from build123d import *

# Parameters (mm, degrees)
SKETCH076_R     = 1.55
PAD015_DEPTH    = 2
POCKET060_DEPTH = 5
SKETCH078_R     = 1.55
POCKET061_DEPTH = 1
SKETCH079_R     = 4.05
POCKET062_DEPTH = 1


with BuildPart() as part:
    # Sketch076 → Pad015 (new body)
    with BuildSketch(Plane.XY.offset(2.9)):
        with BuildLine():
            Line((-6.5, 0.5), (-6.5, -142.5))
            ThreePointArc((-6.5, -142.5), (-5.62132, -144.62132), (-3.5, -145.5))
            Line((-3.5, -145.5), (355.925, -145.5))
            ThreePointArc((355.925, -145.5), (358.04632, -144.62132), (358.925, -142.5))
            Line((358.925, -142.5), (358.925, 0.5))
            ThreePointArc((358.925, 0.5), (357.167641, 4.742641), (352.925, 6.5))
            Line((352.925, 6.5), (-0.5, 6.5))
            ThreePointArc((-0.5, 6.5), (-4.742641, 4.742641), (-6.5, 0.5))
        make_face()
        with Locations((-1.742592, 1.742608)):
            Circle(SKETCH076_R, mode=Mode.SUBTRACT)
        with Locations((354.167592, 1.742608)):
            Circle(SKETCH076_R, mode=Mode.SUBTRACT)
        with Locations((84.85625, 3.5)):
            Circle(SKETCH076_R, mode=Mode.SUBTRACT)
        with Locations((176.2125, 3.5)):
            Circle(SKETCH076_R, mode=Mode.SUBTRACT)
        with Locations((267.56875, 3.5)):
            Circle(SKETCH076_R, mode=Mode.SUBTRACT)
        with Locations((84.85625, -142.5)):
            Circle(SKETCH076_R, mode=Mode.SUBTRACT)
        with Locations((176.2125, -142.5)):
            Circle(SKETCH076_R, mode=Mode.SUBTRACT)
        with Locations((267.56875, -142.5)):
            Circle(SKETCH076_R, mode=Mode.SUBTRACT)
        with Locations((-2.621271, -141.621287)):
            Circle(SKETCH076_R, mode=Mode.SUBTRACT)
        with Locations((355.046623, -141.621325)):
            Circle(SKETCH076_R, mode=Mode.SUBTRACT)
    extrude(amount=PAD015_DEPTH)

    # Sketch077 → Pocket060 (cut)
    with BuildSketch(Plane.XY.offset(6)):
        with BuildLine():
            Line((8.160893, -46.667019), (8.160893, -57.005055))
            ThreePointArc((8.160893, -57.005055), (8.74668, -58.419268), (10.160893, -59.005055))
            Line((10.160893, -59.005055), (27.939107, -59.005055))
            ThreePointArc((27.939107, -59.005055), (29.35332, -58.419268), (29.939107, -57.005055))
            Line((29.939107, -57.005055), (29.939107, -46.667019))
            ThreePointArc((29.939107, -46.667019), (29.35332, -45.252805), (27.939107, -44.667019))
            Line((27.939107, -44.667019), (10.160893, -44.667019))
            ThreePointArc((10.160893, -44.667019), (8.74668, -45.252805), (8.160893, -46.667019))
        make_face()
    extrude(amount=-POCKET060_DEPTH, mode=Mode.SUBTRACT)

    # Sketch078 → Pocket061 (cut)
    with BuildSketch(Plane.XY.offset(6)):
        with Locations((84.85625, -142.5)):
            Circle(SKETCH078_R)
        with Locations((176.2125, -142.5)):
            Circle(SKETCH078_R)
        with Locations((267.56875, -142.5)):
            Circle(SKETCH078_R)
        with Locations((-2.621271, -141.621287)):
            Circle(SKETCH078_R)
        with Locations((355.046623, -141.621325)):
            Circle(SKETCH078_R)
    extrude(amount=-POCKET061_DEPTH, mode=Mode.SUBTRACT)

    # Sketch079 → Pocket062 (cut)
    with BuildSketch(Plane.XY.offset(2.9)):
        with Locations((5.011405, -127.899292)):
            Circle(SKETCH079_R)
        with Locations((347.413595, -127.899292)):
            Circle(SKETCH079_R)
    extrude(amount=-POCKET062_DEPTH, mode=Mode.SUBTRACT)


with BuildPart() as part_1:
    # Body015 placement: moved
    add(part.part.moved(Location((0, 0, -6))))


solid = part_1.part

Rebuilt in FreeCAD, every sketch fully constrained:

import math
import FreeCAD as App
import Part
import Sketcher
Q = App.Units.Quantity

doc = App.newDocument("Part")
params = doc.addObject("Spreadsheet::Sheet", "Params")
for row, (alias, value) in enumerate([
    ("sketch1_radius", "3.000001 mm"),
    ("sketch1_radius2", "5.999999 mm"),
    ("sketch1_diameter", "3.1 mm"),
    ("sketch1_height", "143 mm"),
    ("pad1_length", "2 mm"),
    ("sketch2_radius", "2.000002 mm"),
    ("pocket1_length", "5 mm"),
    ("sketch3_diameter", "3.1 mm"),
    ("pocket2_length", "1 mm"),
    ("sketch4_diameter", "8.1 mm"),
    ("pocket3_length", "1 mm"),
], start=1):
    params.set(f"A{row}", alias)
    params.set(f"B{row}", "=" + value)
    params.setAlias(f"B{row}", alias)

body = doc.addObject("PartDesign::Body", "Body")

sketch1 = doc.addObject("Sketcher::SketchObject", "Sketch")
body.addObject(sketch1)
sketch1.AttachmentSupport = (doc.XY_Plane, [""])
sketch1.MapMode = "FlatFace"
sketch1.AttachmentOffset = App.Placement(App.Vector(0, 0, 2.9), App.Rotation())
sketch1.addGeometry(Part.LineSegment(App.Vector(-6.5, 0.5, 0), App.Vector(-6.5, -142.5, 0)), False)
sketch1.addGeometry(Part.ArcOfCircle(Part.Circle(App.Vector(-3.5, -142.5, 0), App.Vector(0, 0, 1), 3), math.radians(-180), math.radians(-90)), False)
sketch1.addGeometry(Part.LineSegment(App.Vector(-3.5, -145.5, 0), App.Vector(355.9, -145.5, 0)), False)
sketch1.addGeometry(Part.ArcOfCircle(Part.Circle(App.Vector(355.9, -142.5, 0), App.Vector(0, 0, 1), 3), math.radians(-90), math.radians(0)), False)
sketch1.addGeometry(Part.LineSegment(App.Vector(358.9, -142.5, 0), App.Vector(358.9, 0.5, 0)), False)
sketch1.addGeometry(Part.ArcOfCircle(Part.Circle(App.Vector(352.9, 0.5, 0), App.Vector(0, 0, 1), 6), math.radians(0), math.radians(90)), False)
sketch1.addGeometry(Part.LineSegment(App.Vector(352.9, 6.5, 0), App.Vector(-0.5, 6.5, 0)), False)
sketch1.addGeometry(Part.ArcOfCircle(Part.Circle(App.Vector(-0.5, 0.5, 0), App.Vector(0, 0, 1), 6), math.radians(90), math.radians(180)), False)
sketch1.addGeometry(Part.Circle(App.Vector(-2.6, -141.6, 0), App.Vector(0, 0, 1), 1.6), False)
sketch1.addGeometry(Part.Circle(App.Vector(84.9, -142.5, 0), App.Vector(0, 0, 1), 1.6), False)
sketch1.addGeometry(Part.Circle(App.Vector(176.2, -142.5, 0), App.Vector(0, 0, 1), 1.6), False)
sketch1.addGeometry(Part.Circle(App.Vector(267.6, -142.5, 0), App.Vector(0, 0, 1), 1.6), False)
sketch1.addGeometry(Part.Circle(App.Vector(355, -141.6, 0), App.Vector(0, 0, 1), 1.6), False)
sketch1.addGeometry(Part.Circle(App.Vector(-1.7, 1.7, 0), App.Vector(0, 0, 1), 1.6), False)
sketch1.addGeometry(Part.Circle(App.Vector(84.9, 3.5, 0), App.Vector(0, 0, 1), 1.6), False)
sketch1.addGeometry(Part.Circle(App.Vector(176.2, 3.5, 0), App.Vector(0, 0, 1), 1.6), False)
sketch1.addGeometry(Part.Circle(App.Vector(267.6, 3.5, 0), App.Vector(0, 0, 1), 1.6), False)
sketch1.addGeometry(Part.Circle(App.Vector(354.2, 1.7, 0), App.Vector(0, 0, 1), 1.6), False)
sketch1.addConstraint(Sketcher.Constraint("Tangent", 0, 2, 1, 1))
sketch1.addConstraint(Sketcher.Constraint("Tangent", 1, 2, 2, 1))
sketch1.addConstraint(Sketcher.Constraint("Tangent", 2, 2, 3, 1))
sketch1.addConstraint(Sketcher.Constraint("Tangent", 3, 2, 4, 1))
sketch1.addConstraint(Sketcher.Constraint("Tangent", 4, 2, 5, 1))
sketch1.addConstraint(Sketcher.Constraint("Tangent", 5, 2, 6, 1))
sketch1.addConstraint(Sketcher.Constraint("Tangent", 6, 2, 7, 1))
sketch1.addConstraint(Sketcher.Constraint("Tangent", 7, 2, 0, 1))
sketch1.addConstraint(Sketcher.Constraint("Vertical", 0))
sketch1.addConstraint(Sketcher.Constraint("Horizontal", 2))
sketch1.addConstraint(Sketcher.Constraint("Vertical", 4))
sketch1.addConstraint(Sketcher.Constraint("Horizontal", 6))
sketch1.addConstraint(Sketcher.Constraint("Equal", 1, 3))
sketch1.addConstraint(Sketcher.Constraint("Equal", 5, 7))
sketch1.addConstraint(Sketcher.Constraint("Equal", 8, 9))
sketch1.addConstraint(Sketcher.Constraint("Equal", 9, 10))
sketch1.addConstraint(Sketcher.Constraint("Equal", 10, 11))
sketch1.addConstraint(Sketcher.Constraint("Equal", 11, 12))
sketch1.addConstraint(Sketcher.Constraint("Equal", 12, 13))
sketch1.addConstraint(Sketcher.Constraint("Equal", 13, 14))
sketch1.addConstraint(Sketcher.Constraint("Equal", 14, 15))
sketch1.addConstraint(Sketcher.Constraint("Equal", 15, 16))
sketch1.addConstraint(Sketcher.Constraint("Equal", 16, 17))
sketch1.addConstraint(Sketcher.Constraint("Horizontal", 3, 3, 9, 3))
sketch1.addConstraint(Sketcher.Constraint("Horizontal", 9, 3, 10, 3))
sketch1.addConstraint(Sketcher.Constraint("Horizontal", 10, 3, 11, 3))
sketch1.addConstraint(Sketcher.Constraint("Horizontal", 14, 3, 15, 3))
sketch1.addConstraint(Sketcher.Constraint("Horizontal", 15, 3, 16, 3))
sketch1.addConstraint(Sketcher.Constraint("Horizontal", 13, 3, 17, 3))
sketch1.addConstraint(Sketcher.Constraint("Vertical", 9, 3, 14, 3))
sketch1.addConstraint(Sketcher.Constraint("Vertical", 10, 3, 15, 3))
sketch1.addConstraint(Sketcher.Constraint("Vertical", 11, 3, 16, 3))
sketch1.addConstraint(Sketcher.Constraint("Radius", 1, Q("3.000001 mm")))
sketch1.addConstraint(Sketcher.Constraint("Radius", 5, Q("5.999999 mm")))
sketch1.addConstraint(Sketcher.Constraint("Diameter", 8, Q("3.1 mm")))
sketch1.addConstraint(Sketcher.Constraint("DistanceY", 0, 2, 0, 1, Q("143 mm")))
sketch1.addConstraint(Sketcher.Constraint("DistanceY", 7, 3, 14, 3, Q("2.999999 mm")))
sketch1.addConstraint(Sketcher.Constraint("DistanceX", 1, 3, -1, 1, Q("3.499999 mm")))
sketch1.addConstraint(Sketcher.Constraint("DistanceY", 1, 3, -1, 1, Q("142.499999 mm")))
sketch1.addConstraint(Sketcher.Constraint("DistanceX", 2, 1, 2, 2, Q("359.425 mm")))
sketch1.addConstraint(Sketcher.Constraint("DistanceX", -1, 1, 10, 3, Q("176.2125 mm")))
sketch1.addConstraint(Sketcher.Constraint("DistanceX", 9, 3, 11, 3, Q("182.7125 mm")))
sketch1.addConstraint(Sketcher.Constraint("DistanceX", 8, 3, -1, 1, Q("2.621271 mm")))
sketch1.addConstraint(Sketcher.Constraint("DistanceX", -1, 1, 9, 3, Q("84.85625 mm")))
sketch1.addConstraint(Sketcher.Constraint("DistanceX", 13, 3, -1, 1, Q("1.742592 mm")))
sketch1.addConstraint(Sketcher.Constraint("DistanceX", -1, 1, 17, 3, Q("354.167592 mm")))
sketch1.addConstraint(Sketcher.Constraint("DistanceY", 1, 3, 8, 3, Q("0.878712 mm")))
sketch1.addConstraint(Sketcher.Constraint("DistanceX", 5, 3, 12, 3, Q("2.121622 mm")))
sketch1.addConstraint(Sketcher.Constraint("DistanceY", 17, 3, 5, 2, Q("4.757392 mm")))
sketch1.addConstraint(Sketcher.Constraint("DistanceY", 12, 3, -1, 1, Q("141.621325 mm")))
sketch1.setExpression("Constraints[32]", "Params.sketch1_radius")
sketch1.setExpression("Constraints[33]", "Params.sketch1_radius2")
sketch1.setExpression("Constraints[34]", "Params.sketch1_diameter")
sketch1.setExpression("Constraints[35]", "Params.sketch1_height")
pad1 = doc.addObject("PartDesign::Pad", "Pad")
body.addObject(pad1)
pad1.Profile = sketch1
pad1.setExpression("Length", "Params.pad1_length")

sketch2 = doc.addObject("Sketcher::SketchObject", "Sketch001")
body.addObject(sketch2)
sketch2.AttachmentSupport = (doc.XY_Plane, [""])
sketch2.MapMode = "FlatFace"
sketch2.AttachmentOffset = App.Placement(App.Vector(0, 0, 6), App.Rotation())
sketch2.addGeometry(Part.LineSegment(App.Vector(8.2, -46.7, 0), App.Vector(8.2, -57, 0)), False)
sketch2.addGeometry(Part.ArcOfCircle(Part.Circle(App.Vector(10.2, -57, 0), App.Vector(0, 0, 1), 2), math.radians(-180), math.radians(-90)), False)
sketch2.addGeometry(Part.LineSegment(App.Vector(10.2, -59, 0), App.Vector(27.9, -59, 0)), False)
sketch2.addGeometry(Part.ArcOfCircle(Part.Circle(App.Vector(27.9, -57, 0), App.Vector(0, 0, 1), 2), math.radians(-90), math.radians(0)), False)
sketch2.addGeometry(Part.LineSegment(App.Vector(29.9, -57, 0), App.Vector(29.9, -46.7, 0)), False)
sketch2.addGeometry(Part.ArcOfCircle(Part.Circle(App.Vector(27.9, -46.7, 0), App.Vector(0, 0, 1), 2), math.radians(0), math.radians(90)), False)
sketch2.addGeometry(Part.LineSegment(App.Vector(27.9, -44.7, 0), App.Vector(10.2, -44.7, 0)), False)
sketch2.addGeometry(Part.ArcOfCircle(Part.Circle(App.Vector(10.2, -46.7, 0), App.Vector(0, 0, 1), 2), math.radians(90), math.radians(180)), False)
sketch2.addConstraint(Sketcher.Constraint("Tangent", 0, 2, 1, 1))
sketch2.addConstraint(Sketcher.Constraint("Tangent", 1, 2, 2, 1))
sketch2.addConstraint(Sketcher.Constraint("Tangent", 2, 2, 3, 1))
sketch2.addConstraint(Sketcher.Constraint("Tangent", 3, 2, 4, 1))
sketch2.addConstraint(Sketcher.Constraint("Tangent", 4, 2, 5, 1))
sketch2.addConstraint(Sketcher.Constraint("Tangent", 5, 2, 6, 1))
sketch2.addConstraint(Sketcher.Constraint("Tangent", 6, 2, 7, 1))
sketch2.addConstraint(Sketcher.Constraint("Tangent", 7, 2, 0, 1))
sketch2.addConstraint(Sketcher.Constraint("Vertical", 0))
sketch2.addConstraint(Sketcher.Constraint("Horizontal", 2))
sketch2.addConstraint(Sketcher.Constraint("Vertical", 4))
sketch2.addConstraint(Sketcher.Constraint("Horizontal", 6))
sketch2.addConstraint(Sketcher.Constraint("Equal", 1, 3))
sketch2.addConstraint(Sketcher.Constraint("Equal", 3, 5))
sketch2.addConstraint(Sketcher.Constraint("Equal", 5, 7))
sketch2.addConstraint(Sketcher.Constraint("Radius", 1, Q("2.000002 mm")))
sketch2.addConstraint(Sketcher.Constraint("DistanceX", 2, 1, 2, 2, Q("17.778214 mm")))
sketch2.addConstraint(Sketcher.Constraint("DistanceY", 0, 2, 0, 1, Q("10.338036 mm")))
sketch2.addConstraint(Sketcher.Constraint("DistanceY", 5, 3, -1, 1, Q("46.667019 mm")))
sketch2.addConstraint(Sketcher.Constraint("DistanceX", -1, 1, 1, 3, Q("10.160895 mm")))
sketch2.setExpression("Constraints[15]", "Params.sketch2_radius")
pocket1 = doc.addObject("PartDesign::Pocket", "Pocket")
body.addObject(pocket1)
pocket1.Profile = sketch2
pocket1.setExpression("Length", "Params.pocket1_length")

sketch3 = doc.addObject("Sketcher::SketchObject", "Sketch002")
body.addObject(sketch3)
sketch3.AttachmentSupport = (doc.XY_Plane, [""])
sketch3.MapMode = "FlatFace"
sketch3.AttachmentOffset = App.Placement(App.Vector(0, 0, 6), App.Rotation())
sketch3.addGeometry(Part.Circle(App.Vector(84.9, -142.5, 0), App.Vector(0, 0, 1), 1.6), False)
sketch3.addGeometry(Part.Circle(App.Vector(176.2, -142.5, 0), App.Vector(0, 0, 1), 1.6), False)
sketch3.addGeometry(Part.Circle(App.Vector(267.6, -142.5, 0), App.Vector(0, 0, 1), 1.6), False)
sketch3.addGeometry(Part.Circle(App.Vector(-2.6, -141.6, 0), App.Vector(0, 0, 1), 1.6), False)
sketch3.addGeometry(Part.Circle(App.Vector(355, -141.6, 0), App.Vector(0, 0, 1), 1.6), False)
sketch3.addConstraint(Sketcher.Constraint("Equal", 0, 1))
sketch3.addConstraint(Sketcher.Constraint("Equal", 1, 2))
sketch3.addConstraint(Sketcher.Constraint("Equal", 2, 3))
sketch3.addConstraint(Sketcher.Constraint("Equal", 3, 4))
sketch3.addConstraint(Sketcher.Constraint("Horizontal", 0, 3, 1, 3))
sketch3.addConstraint(Sketcher.Constraint("Horizontal", 1, 3, 2, 3))
sketch3.addConstraint(Sketcher.Constraint("Diameter", 0, Q("3.1 mm")))
sketch3.addConstraint(Sketcher.Constraint("DistanceY", 0, 3, -1, 1, Q("142.5 mm")))
sketch3.addConstraint(Sketcher.Constraint("DistanceX", -1, 1, 1, 3, Q("176.2125 mm")))
sketch3.addConstraint(Sketcher.Constraint("DistanceX", 0, 3, 2, 3, Q("182.7125 mm")))
sketch3.addConstraint(Sketcher.Constraint("DistanceX", -1, 1, 0, 3, Q("84.85625 mm")))
sketch3.addConstraint(Sketcher.Constraint("DistanceX", 3, 3, -1, 1, Q("2.621271 mm")))
sketch3.addConstraint(Sketcher.Constraint("DistanceY", 3, 3, -1, 1, Q("141.621287 mm")))
sketch3.addConstraint(Sketcher.Constraint("DistanceX", -1, 1, 4, 3, Q("355.046623 mm")))
sketch3.addConstraint(Sketcher.Constraint("DistanceY", 4, 3, -1, 1, Q("141.621325 mm")))
sketch3.setExpression("Constraints[6]", "Params.sketch3_diameter")
pocket2 = doc.addObject("PartDesign::Pocket", "Pocket001")
body.addObject(pocket2)
pocket2.Profile = sketch3
pocket2.setExpression("Length", "Params.pocket2_length")

sketch4 = doc.addObject("Sketcher::SketchObject", "Sketch003")
body.addObject(sketch4)
sketch4.AttachmentSupport = (doc.XY_Plane, [""])
sketch4.MapMode = "FlatFace"
sketch4.AttachmentOffset = App.Placement(App.Vector(0, 0, 2.9), App.Rotation())
sketch4.addGeometry(Part.Circle(App.Vector(5, -127.9, 0), App.Vector(0, 0, 1), 4), False)
sketch4.addGeometry(Part.Circle(App.Vector(347.4, -127.9, 0), App.Vector(0, 0, 1), 4), False)
sketch4.addConstraint(Sketcher.Constraint("Equal", 0, 1))
sketch4.addConstraint(Sketcher.Constraint("Horizontal", 0, 3, 1, 3))
sketch4.addConstraint(Sketcher.Constraint("Diameter", 0, Q("8.1 mm")))
sketch4.addConstraint(Sketcher.Constraint("DistanceX", 0, 3, 1, 3, Q("342.40219 mm")))
sketch4.addConstraint(Sketcher.Constraint("DistanceX", -1, 1, 0, 3, Q("5.011405 mm")))
sketch4.addConstraint(Sketcher.Constraint("DistanceY", 0, 3, -1, 1, Q("127.899292 mm")))
sketch4.setExpression("Constraints[2]", "Params.sketch4_diameter")
pocket3 = doc.addObject("PartDesign::Pocket", "Pocket002")
body.addObject(pocket3)
pocket3.Profile = sketch4
pocket3.setExpression("Length", "Params.pocket3_length")
body2 = doc.addObject("PartDesign::Body", "Body001")
doc.recompute()

body.Placement = App.Placement(App.Vector(0, 0, -6), App.Rotation(App.Vector(0, 0, 1), 0))
boolean = doc.addObject("PartDesign::Boolean", "Boolean")
body2.addObject(boolean)
boolean.Type = "Fuse"
boolean.addObjects([body])

doc.recompute()
